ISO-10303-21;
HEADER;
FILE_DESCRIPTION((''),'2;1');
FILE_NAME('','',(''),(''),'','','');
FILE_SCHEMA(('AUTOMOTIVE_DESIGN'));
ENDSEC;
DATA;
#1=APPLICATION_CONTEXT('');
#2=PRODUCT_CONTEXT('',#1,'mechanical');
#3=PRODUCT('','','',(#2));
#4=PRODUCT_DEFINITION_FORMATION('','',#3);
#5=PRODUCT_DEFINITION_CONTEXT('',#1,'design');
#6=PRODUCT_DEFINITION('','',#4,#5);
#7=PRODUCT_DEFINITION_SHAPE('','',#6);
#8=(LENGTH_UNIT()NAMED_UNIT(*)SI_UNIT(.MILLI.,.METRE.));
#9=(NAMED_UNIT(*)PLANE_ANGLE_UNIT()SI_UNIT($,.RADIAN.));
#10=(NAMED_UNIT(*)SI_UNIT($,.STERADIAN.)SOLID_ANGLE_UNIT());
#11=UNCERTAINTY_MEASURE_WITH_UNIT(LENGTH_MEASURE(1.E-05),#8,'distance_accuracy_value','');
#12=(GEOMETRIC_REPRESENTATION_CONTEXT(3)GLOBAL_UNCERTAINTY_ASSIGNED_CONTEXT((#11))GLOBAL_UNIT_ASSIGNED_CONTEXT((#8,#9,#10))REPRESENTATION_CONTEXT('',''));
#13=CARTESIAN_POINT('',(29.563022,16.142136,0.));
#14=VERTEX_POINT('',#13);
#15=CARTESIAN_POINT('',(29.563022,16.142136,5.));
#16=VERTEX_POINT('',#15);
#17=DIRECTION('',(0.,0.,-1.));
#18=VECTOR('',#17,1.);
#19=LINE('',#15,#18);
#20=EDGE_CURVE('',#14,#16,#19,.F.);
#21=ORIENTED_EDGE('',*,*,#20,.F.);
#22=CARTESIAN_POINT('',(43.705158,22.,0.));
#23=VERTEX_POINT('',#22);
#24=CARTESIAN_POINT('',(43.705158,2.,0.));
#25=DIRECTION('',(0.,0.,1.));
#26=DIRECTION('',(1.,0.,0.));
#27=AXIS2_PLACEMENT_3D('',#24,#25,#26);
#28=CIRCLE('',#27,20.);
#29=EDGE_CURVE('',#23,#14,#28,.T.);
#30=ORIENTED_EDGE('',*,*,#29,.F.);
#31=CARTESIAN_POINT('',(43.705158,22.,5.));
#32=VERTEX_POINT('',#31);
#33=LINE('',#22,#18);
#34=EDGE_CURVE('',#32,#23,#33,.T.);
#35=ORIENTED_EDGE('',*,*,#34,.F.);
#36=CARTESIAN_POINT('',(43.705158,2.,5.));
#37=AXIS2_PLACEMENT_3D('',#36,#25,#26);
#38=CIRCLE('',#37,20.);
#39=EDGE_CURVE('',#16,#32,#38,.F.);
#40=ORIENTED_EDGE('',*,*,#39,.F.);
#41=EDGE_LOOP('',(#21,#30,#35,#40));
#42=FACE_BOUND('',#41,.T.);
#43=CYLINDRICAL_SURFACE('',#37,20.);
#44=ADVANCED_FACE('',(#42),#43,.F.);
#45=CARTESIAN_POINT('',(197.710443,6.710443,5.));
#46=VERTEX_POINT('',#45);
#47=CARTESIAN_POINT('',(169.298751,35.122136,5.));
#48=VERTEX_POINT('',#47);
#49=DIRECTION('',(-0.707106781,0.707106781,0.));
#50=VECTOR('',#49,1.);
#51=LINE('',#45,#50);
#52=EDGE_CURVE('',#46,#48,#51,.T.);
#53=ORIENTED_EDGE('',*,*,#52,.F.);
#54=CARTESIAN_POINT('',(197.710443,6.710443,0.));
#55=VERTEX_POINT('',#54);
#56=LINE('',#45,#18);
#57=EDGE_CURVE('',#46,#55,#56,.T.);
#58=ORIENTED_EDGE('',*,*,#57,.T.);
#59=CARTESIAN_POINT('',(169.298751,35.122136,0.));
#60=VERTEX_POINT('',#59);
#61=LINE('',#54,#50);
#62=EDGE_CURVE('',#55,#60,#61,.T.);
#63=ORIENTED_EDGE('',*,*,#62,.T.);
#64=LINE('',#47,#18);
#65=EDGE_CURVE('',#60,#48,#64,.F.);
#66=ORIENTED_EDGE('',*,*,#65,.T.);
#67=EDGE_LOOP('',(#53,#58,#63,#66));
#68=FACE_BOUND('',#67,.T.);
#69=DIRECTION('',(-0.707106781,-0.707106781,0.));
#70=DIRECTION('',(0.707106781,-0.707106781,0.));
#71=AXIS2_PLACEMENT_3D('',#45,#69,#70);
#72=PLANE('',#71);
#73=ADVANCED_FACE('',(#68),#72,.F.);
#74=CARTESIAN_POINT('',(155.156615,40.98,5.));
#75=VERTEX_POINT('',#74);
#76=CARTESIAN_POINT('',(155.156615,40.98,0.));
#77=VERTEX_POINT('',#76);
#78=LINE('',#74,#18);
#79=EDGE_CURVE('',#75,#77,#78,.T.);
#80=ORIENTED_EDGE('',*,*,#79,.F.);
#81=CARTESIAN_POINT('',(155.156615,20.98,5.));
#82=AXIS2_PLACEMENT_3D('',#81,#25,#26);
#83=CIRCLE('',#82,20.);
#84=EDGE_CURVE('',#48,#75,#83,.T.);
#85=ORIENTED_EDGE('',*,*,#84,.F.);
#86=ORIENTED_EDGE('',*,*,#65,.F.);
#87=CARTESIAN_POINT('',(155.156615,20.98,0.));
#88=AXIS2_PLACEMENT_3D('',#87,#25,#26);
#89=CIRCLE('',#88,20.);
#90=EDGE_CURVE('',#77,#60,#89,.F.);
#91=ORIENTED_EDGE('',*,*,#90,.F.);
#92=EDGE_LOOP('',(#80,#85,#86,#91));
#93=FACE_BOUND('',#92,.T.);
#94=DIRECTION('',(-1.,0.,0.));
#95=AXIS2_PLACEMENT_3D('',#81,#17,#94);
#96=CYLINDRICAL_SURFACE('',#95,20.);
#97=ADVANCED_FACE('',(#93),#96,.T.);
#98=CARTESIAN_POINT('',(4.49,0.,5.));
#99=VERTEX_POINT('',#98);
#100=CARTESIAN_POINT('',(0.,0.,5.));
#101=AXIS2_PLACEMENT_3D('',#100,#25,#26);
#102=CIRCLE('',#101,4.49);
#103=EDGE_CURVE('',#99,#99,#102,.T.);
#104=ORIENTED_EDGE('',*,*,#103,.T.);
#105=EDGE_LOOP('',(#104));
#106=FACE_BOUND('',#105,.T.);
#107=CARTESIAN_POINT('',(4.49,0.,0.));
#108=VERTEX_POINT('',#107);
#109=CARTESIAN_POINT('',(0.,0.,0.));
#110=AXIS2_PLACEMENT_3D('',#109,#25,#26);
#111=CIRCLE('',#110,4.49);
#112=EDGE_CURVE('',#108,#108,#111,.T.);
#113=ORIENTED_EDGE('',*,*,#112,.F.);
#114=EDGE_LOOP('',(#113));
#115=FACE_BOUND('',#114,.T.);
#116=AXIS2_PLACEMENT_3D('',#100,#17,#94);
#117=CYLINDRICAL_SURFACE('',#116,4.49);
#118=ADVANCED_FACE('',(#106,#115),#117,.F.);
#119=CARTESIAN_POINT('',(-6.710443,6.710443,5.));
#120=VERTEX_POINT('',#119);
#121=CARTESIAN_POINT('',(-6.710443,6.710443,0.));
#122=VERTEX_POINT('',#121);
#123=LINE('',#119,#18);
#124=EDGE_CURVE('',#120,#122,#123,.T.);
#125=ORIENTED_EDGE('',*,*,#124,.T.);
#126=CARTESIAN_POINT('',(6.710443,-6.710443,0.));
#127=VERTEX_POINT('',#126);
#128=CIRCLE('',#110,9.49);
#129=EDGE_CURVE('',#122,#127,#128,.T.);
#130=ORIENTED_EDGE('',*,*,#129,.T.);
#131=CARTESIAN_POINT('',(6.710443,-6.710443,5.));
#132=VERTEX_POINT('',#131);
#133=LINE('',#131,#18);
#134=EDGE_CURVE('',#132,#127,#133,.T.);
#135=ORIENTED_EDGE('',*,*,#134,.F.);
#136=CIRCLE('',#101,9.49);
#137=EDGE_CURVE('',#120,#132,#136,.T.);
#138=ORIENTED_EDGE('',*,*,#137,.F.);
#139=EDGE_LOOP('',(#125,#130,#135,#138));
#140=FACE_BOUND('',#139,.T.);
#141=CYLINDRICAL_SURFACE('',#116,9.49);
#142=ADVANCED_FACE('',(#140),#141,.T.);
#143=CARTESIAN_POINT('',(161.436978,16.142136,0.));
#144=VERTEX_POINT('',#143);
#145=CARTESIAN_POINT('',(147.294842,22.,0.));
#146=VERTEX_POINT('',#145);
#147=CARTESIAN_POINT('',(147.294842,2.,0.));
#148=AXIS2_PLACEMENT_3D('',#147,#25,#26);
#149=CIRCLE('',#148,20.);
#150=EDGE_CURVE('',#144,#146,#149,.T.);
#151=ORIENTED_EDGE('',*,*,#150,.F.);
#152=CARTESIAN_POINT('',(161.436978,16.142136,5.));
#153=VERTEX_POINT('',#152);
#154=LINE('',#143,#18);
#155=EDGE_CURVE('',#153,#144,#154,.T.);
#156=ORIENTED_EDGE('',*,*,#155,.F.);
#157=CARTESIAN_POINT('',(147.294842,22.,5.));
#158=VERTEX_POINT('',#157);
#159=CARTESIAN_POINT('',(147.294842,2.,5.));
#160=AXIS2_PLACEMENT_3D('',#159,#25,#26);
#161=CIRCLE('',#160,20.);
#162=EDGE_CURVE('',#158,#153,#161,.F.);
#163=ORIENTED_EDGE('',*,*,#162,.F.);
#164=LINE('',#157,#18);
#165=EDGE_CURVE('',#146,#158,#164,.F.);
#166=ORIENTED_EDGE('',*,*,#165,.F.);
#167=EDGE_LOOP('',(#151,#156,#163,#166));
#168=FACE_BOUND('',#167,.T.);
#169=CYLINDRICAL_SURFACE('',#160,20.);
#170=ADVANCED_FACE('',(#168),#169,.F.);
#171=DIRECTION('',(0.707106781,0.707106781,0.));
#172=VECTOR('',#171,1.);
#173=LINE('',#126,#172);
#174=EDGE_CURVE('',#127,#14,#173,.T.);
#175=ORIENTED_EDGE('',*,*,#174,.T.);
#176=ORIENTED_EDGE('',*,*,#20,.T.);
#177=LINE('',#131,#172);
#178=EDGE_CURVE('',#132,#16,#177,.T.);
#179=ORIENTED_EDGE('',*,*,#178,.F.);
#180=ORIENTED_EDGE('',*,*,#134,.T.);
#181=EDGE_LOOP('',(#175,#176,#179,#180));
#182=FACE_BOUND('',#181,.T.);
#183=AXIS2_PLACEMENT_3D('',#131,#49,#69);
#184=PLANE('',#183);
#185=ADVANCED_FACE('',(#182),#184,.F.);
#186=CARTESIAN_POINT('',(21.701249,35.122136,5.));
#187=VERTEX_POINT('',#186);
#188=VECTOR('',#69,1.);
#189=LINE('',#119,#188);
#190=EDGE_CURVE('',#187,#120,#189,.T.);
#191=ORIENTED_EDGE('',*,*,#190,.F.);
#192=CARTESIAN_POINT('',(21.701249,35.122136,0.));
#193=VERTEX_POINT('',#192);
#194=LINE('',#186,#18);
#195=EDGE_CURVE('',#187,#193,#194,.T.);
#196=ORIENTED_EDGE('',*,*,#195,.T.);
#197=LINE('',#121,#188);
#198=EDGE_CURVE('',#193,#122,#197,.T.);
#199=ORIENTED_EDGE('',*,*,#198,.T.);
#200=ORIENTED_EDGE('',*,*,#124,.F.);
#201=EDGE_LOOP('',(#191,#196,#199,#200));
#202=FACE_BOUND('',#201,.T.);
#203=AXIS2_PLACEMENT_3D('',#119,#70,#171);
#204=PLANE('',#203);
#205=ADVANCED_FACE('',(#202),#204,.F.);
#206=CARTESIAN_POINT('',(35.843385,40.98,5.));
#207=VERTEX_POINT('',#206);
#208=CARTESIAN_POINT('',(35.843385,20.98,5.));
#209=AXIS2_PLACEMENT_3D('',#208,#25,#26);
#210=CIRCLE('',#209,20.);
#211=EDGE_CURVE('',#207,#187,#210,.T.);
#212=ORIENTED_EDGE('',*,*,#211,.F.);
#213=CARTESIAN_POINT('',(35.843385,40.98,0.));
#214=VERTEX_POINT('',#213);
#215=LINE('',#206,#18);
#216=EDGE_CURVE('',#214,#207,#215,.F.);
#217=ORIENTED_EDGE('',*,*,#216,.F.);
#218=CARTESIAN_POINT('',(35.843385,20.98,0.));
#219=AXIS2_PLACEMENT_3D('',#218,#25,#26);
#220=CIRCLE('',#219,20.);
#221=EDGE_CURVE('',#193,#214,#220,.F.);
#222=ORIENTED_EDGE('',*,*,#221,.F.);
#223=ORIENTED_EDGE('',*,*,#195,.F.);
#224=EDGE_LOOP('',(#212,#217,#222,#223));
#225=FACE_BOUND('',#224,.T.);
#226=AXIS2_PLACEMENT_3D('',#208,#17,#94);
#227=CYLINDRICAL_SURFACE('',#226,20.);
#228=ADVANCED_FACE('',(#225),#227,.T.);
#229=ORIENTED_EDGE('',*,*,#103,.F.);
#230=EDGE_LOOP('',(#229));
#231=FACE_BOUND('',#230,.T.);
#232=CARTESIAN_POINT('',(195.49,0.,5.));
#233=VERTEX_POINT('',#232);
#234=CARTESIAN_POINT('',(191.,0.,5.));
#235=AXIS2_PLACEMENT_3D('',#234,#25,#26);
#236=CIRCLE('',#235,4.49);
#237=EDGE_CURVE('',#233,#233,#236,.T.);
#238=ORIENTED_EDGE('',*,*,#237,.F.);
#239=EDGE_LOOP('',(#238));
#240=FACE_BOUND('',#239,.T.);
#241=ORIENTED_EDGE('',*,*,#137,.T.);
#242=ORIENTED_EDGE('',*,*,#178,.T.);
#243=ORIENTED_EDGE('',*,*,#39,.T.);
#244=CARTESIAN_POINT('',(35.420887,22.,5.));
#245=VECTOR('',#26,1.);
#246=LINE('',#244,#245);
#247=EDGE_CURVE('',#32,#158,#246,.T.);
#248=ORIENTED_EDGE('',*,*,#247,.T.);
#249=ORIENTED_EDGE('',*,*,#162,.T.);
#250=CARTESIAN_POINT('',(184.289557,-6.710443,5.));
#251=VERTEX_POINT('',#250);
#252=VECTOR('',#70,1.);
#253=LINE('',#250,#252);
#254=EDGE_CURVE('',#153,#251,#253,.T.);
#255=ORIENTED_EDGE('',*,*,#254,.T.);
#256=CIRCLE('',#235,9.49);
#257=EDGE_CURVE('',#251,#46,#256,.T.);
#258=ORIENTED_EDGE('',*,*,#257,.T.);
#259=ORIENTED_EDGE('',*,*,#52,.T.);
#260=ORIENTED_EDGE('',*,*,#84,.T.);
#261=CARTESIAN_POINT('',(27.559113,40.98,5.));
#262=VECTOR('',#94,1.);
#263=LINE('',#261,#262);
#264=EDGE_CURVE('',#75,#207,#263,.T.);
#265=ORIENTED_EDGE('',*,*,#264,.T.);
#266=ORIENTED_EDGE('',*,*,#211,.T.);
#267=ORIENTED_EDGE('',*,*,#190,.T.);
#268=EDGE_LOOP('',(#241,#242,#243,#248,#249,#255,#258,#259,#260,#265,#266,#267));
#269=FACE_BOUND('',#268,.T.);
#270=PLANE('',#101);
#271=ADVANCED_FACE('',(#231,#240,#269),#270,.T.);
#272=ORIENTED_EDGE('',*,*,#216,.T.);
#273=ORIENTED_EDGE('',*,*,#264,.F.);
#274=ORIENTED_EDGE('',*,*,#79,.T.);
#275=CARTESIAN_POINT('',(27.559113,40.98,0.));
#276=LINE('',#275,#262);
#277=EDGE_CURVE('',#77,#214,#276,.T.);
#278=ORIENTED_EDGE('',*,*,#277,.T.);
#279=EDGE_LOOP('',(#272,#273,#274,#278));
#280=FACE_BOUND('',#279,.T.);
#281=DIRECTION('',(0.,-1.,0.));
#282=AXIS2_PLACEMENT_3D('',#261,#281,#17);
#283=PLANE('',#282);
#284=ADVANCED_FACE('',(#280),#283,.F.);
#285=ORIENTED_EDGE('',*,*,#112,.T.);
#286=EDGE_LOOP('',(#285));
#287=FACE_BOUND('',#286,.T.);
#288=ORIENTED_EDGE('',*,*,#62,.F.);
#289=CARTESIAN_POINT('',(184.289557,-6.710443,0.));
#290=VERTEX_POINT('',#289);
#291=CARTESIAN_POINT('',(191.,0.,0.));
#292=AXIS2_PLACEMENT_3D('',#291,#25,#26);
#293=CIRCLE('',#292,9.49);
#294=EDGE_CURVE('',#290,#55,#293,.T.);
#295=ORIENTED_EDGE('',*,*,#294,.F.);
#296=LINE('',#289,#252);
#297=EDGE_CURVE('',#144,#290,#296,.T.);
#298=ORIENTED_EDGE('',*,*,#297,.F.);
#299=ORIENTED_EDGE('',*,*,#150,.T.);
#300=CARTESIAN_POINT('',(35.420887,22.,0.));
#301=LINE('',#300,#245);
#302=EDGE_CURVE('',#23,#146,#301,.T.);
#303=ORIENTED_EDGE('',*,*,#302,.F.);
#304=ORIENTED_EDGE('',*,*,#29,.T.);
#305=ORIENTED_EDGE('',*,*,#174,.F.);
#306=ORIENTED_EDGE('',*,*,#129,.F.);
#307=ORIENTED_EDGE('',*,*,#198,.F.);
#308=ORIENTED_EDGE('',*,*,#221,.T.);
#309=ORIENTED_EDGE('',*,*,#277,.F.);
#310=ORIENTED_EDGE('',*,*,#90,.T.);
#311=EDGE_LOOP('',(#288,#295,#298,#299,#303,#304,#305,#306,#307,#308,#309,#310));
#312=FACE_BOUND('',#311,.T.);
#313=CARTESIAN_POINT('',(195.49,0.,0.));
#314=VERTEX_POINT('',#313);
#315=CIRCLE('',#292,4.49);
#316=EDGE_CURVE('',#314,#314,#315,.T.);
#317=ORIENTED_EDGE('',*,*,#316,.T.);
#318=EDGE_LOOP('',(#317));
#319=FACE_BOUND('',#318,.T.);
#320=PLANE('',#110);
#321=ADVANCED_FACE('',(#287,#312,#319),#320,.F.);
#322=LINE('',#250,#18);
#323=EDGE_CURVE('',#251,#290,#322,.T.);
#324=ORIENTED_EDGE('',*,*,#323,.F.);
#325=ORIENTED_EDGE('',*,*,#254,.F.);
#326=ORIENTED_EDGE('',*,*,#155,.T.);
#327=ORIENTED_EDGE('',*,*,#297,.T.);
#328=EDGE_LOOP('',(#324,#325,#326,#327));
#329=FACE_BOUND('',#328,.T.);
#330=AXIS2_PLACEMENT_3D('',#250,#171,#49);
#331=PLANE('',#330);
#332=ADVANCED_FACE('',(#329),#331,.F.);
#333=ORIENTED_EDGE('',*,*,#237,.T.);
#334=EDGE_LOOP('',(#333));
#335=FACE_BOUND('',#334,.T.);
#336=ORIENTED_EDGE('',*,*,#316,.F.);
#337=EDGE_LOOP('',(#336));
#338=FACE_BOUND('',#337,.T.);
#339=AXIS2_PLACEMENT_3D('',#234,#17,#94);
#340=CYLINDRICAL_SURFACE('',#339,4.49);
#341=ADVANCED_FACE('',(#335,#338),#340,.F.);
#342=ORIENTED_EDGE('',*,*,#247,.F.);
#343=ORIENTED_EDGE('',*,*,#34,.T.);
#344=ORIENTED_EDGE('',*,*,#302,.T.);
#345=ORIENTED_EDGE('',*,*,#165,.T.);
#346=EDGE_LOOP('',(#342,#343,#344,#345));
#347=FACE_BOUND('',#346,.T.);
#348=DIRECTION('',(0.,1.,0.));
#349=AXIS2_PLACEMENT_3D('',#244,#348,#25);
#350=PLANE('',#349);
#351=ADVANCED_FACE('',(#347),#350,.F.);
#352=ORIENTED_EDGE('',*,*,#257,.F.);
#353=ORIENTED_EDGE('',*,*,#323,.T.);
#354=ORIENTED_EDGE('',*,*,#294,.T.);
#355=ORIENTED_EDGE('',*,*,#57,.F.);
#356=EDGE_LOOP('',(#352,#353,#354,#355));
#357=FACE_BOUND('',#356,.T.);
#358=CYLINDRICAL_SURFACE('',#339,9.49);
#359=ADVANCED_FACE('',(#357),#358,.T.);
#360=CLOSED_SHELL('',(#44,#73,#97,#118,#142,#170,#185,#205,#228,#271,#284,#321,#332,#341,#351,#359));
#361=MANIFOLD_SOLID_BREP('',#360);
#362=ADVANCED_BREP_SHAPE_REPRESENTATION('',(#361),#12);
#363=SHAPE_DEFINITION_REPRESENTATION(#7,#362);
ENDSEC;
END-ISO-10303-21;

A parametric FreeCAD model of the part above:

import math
import FreeCAD as App
import Part
import Sketcher
from FreeCAD import Vector


def edges_at(feature, points):
    """Names of the edges that pass closest to the given points."""
    edges = feature.Shape.Edges
    near = lambda p: min(range(len(edges)), key=lambda i: edges[i].distToShape(Part.Vertex(*p))[0])
    return sorted({f"Edge{near(p) + 1}" for p in points})

doc = App.newDocument("Part")
body = doc.addObject("PartDesign::Body", "Body")

sketch1 = doc.addObject("Sketcher::SketchObject", "Sketch")
body.addObject(sketch1)
sketch1.AttachmentSupport = (doc.XY_Plane, [""])
sketch1.MapMode = "FlatFace"
sketch1.addGeometry(Part.LineSegment(Vector(27.6, 41, 0), Vector(-6.7, 6.7, 0)), False)
sketch1.addGeometry(Part.ArcOfCircle(Part.Circle(Vector(0, 0, 0), Vector(0, 0, 1), 9.5), math.radians(135), math.radians(315)), False)
sketch1.addGeometry(Part.LineSegment(Vector(6.7, -6.7, 0), Vector(35.4, 22, 0)), False)
sketch1.addGeometry(Part.LineSegment(Vector(35.4, 22, 0), Vector(155.6, 22, 0)), False)
sketch1.addGeometry(Part.LineSegment(Vector(155.6, 22, 0), Vector(184.3, -6.7, 0)), False)
sketch1.addGeometry(Part.ArcOfCircle(Part.Circle(Vector(191, 0, 0), Vector(0, 0, 1), 9.5), math.radians(-135), math.radians(45)), False)
sketch1.addGeometry(Part.LineSegment(Vector(197.7, 6.7, 0), Vector(163.4, 41, 0)), False)
sketch1.addGeometry(Part.LineSegment(Vector(163.4, 41, 0), Vector(27.6, 41, 0)), False)
sketch1.addGeometry(Part.Circle(Vector(191, 0, 0), Vector(0, 0, 1), 4.5), False)
sketch1.addGeometry(Part.Circle(Vector(0, 0, 0), Vector(0, 0, 1), 4.5), False)
sketch1.addConstraint(Sketcher.Constraint("Tangent", 0, 2, 1, 1))
sketch1.addConstraint(Sketcher.Constraint("Tangent", 1, 2, 2, 1))
sketch1.addConstraint(Sketcher.Constraint("Coincident", 2, 2, 3, 1))
sketch1.addConstraint(Sketcher.Constraint("Coincident", 3, 2, 4, 1))
sketch1.addConstraint(Sketcher.Constraint("Tangent", 4, 2, 5, 1))
sketch1.addConstraint(Sketcher.Constraint("Tangent", 5, 2, 6, 1))
sketch1.addConstraint(Sketcher.Constraint("Coincident", 6, 2, 7, 1))
sketch1.addConstraint(Sketcher.Constraint("Coincident", 7, 2, 0, 1))
sketch1.addConstraint(Sketcher.Constraint("Horizontal", 3))
sketch1.addConstraint(Sketcher.Constraint("Horizontal", 7))
sketch1.addConstraint(Sketcher.Constraint("Coincident", 1, 3, -1, 1))
sketch1.addConstraint(Sketcher.Constraint("Coincident", 9, 3, -1, 1))
sketch1.addConstraint(Sketcher.Constraint("Coincident", 8, 3, 5, 3))
sketch1.addConstraint(Sketcher.Constraint("Equal", 1, 5))
sketch1.addConstraint(Sketcher.Constraint("Equal", 8, 9))
sketch1.addConstraint(Sketcher.Constraint("PointOnObject", 5, 3, -1))
sketch1.addConstraint(Sketcher.Constraint("Parallel", 0, 2))
sketch1.addConstraint(Sketcher.Constraint("Perpendicular", 2, 4))
sketch1.addConstraint(Sketcher.Constraint("Parallel", 4, 6))
sketch1.addConstraint(Sketcher.Constraint("Horizontal", 1, 2, 4, 2))
sketch1.addConstraint(Sketcher.Constraint("Diameter", 8, 8.98))
sketch1.addConstraint(Sketcher.Constraint("Radius", 1, 9.49))
sketch1.addConstraint(Sketcher.Constraint("DistanceX", -1, 1, 5, 3, 191.0))
sketch1.addConstraint(Sketcher.Constraint("DistanceY", -1, 1, 2, 2, 22.0))
sketch1.addConstraint(Sketcher.Constraint("DistanceY", -1, 1, 6, 2, 40.98))
pad1 = doc.addObject("PartDesign::Pad", "Pad")
body.addObject(pad1)
pad1.Profile = sketch1
pad1.Length = 5
doc.recompute()

fillet = doc.addObject("PartDesign::Fillet", "Fillet")
body.addObject(fillet)
fillet.Base = (pad1, edges_at(pad1, [(27.559, 40.98, 2.5)]))
fillet.Radius = 20
doc.recompute()

fillet2 = doc.addObject("PartDesign::Fillet", "Fillet001")
body.addObject(fillet2)
fillet2.Base = (fillet, edges_at(fillet, [(35.421, 22, 2.5)]))
fillet2.Radius = 20
doc.recompute()

fillet3 = doc.addObject("PartDesign::Fillet", "Fillet002")
body.addObject(fillet3)
fillet3.Base = (fillet2, edges_at(fillet2, [(163.441, 40.98, 2.5)]))
fillet3.Radius = 20
doc.recompute()

fillet4 = doc.addObject("PartDesign::Fillet", "Fillet003")
body.addObject(fillet4)
fillet4.Base = (fillet3, edges_at(fillet3, [(155.579, 22, 2.5)]))
fillet4.Radius = 20

doc.recompute()
